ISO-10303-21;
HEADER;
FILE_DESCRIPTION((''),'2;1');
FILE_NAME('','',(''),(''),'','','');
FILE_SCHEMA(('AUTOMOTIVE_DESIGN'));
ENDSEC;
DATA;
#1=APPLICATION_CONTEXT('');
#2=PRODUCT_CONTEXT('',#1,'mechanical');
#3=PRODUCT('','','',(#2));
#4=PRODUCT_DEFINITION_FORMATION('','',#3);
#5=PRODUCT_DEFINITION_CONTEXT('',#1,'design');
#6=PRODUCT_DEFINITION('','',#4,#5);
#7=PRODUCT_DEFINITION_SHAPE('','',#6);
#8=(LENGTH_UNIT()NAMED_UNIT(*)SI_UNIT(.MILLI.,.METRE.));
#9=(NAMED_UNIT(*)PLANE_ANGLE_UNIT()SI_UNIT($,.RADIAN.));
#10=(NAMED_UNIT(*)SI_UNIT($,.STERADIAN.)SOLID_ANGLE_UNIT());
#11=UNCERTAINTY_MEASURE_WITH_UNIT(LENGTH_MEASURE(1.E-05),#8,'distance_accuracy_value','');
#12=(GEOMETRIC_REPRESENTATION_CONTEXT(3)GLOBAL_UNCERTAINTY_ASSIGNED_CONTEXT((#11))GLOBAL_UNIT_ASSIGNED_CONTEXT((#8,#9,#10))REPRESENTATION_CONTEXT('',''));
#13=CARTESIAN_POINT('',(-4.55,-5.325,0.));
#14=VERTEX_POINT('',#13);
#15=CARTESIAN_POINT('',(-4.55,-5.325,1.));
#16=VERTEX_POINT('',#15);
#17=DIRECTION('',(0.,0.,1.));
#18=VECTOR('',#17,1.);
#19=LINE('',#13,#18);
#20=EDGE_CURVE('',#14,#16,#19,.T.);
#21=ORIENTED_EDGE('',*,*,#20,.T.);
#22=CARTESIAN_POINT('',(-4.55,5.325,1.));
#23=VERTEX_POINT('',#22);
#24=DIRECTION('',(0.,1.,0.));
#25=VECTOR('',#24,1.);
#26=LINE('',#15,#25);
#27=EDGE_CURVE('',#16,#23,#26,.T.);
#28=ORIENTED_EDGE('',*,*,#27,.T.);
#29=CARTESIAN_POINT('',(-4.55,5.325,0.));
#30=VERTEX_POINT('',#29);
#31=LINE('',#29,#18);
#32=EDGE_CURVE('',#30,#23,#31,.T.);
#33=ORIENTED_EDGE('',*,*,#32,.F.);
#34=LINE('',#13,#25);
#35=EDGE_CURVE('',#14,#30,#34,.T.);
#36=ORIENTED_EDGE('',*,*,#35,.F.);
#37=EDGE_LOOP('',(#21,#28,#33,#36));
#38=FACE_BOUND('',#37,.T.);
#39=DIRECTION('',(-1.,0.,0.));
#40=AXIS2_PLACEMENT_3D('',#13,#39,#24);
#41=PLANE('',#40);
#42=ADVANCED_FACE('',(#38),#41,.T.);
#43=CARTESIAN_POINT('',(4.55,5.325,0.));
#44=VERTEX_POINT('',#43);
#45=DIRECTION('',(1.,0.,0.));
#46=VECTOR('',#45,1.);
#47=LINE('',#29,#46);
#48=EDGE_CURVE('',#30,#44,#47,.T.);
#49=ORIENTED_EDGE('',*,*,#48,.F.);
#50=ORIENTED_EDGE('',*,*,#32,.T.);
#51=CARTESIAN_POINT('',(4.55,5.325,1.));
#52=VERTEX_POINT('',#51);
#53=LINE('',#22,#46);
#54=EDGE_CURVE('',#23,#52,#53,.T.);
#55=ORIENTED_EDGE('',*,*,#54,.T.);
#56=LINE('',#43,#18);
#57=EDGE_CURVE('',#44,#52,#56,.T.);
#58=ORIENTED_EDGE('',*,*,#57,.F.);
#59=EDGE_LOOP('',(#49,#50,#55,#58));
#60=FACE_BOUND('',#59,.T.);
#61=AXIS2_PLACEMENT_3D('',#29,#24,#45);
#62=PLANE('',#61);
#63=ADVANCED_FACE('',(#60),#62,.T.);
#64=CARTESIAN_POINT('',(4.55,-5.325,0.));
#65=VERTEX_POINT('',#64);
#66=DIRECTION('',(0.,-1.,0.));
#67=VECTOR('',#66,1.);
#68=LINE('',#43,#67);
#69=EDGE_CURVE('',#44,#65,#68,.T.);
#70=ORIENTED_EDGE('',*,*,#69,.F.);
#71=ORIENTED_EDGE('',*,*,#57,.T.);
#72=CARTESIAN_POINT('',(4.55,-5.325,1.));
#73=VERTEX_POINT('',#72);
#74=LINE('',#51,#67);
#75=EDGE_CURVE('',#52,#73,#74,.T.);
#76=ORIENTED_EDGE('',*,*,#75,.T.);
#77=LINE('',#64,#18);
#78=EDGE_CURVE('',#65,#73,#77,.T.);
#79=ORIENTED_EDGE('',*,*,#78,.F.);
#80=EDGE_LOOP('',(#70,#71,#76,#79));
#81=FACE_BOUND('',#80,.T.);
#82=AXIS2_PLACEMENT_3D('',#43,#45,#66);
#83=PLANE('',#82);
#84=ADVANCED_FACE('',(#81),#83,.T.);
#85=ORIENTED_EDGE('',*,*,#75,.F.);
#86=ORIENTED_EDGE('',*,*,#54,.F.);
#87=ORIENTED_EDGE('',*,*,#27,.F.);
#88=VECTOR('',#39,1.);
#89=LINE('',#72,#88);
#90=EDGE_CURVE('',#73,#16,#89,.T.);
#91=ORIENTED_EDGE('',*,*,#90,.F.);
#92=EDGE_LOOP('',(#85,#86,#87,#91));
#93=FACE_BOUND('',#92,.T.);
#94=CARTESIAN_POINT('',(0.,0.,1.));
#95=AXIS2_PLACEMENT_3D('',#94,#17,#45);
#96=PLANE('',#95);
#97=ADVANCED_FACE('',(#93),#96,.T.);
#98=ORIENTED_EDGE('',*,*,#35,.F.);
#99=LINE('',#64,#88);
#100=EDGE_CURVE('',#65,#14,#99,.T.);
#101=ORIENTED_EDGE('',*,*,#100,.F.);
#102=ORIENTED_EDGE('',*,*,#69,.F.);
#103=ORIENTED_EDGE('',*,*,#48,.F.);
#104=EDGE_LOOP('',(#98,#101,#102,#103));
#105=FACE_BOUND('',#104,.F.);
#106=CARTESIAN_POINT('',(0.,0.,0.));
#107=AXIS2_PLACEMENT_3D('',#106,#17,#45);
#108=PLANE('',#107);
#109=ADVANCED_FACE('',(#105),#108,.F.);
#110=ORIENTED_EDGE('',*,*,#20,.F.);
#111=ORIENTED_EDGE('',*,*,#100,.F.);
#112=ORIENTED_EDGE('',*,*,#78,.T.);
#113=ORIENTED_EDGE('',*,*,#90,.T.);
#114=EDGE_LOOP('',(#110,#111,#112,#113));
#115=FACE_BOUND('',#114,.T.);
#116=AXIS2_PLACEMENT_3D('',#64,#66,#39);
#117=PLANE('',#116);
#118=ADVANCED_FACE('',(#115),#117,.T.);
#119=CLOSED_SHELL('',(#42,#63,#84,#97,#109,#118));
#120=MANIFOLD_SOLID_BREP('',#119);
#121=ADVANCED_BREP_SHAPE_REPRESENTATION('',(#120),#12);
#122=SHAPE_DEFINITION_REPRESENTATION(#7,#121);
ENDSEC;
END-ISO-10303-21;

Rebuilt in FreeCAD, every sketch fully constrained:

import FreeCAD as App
import Part
import Sketcher
Q = App.Units.Quantity

doc = App.newDocument("Part")
params = doc.addObject("Spreadsheet::Sheet", "Params")
for row, (alias, value) in enumerate([
    ("sketch1_width", "9.1 mm"),
    ("sketch1_height", "10.65 mm"),
    ("pad1_length", "1 mm"),
], start=1):
    params.set(f"A{row}", alias)
    params.set(f"B{row}", "=" + value)
    params.setAlias(f"B{row}", alias)

body = doc.addObject("PartDesign::Body", "Body")

# Sketch on XY plane
sketch1 = body.newObject("Sketcher::SketchObject", "Sketch")
sketch1.AttachmentSupport = (doc.getObject("XY_Plane"), [""])
sketch1.MapMode = "FlatFace"
sketch1.addGeometry(Part.LineSegment(App.Vector(-5, 5, 0), App.Vector(-5, -5, 0)), False)
sketch1.addGeometry(Part.LineSegment(App.Vector(-5, -5, 0), App.Vector(5, -5, 0)), False)
sketch1.addGeometry(Part.LineSegment(App.Vector(5, -5, 0), App.Vector(5, 5, 0)), False)
sketch1.addGeometry(Part.LineSegment(App.Vector(5, 5, 0), App.Vector(-5, 5, 0)), False)
sketch1.addConstraint(Sketcher.Constraint("Coincident", 0, 2, 1, 1))
sketch1.addConstraint(Sketcher.Constraint("Coincident", 1, 2, 2, 1))
sketch1.addConstraint(Sketcher.Constraint("Coincident", 2, 2, 3, 1))
sketch1.addConstraint(Sketcher.Constraint("Coincident", 3, 2, 0, 1))
sketch1.addConstraint(Sketcher.Constraint("Vertical", 0))
sketch1.addConstraint(Sketcher.Constraint("Horizontal", 1))
sketch1.addConstraint(Sketcher.Constraint("Vertical", 2))
sketch1.addConstraint(Sketcher.Constraint("Horizontal", 3))
sketch1.addConstraint(Sketcher.Constraint("Symmetric", 0, 2, 2, 2, -1, 1))
sketch1.addConstraint(Sketcher.Constraint("DistanceX", 1, 1, 1, 2, Q("9.1 mm")))
sketch1.addConstraint(Sketcher.Constraint("DistanceY", 0, 2, 0, 1, Q("10.65 mm")))
sketch1.setExpression("Constraints[9]", "Params.sketch1_width")
sketch1.setExpression("Constraints[10]", "Params.sketch1_height")
pad1 = body.newObject("PartDesign::Pad", "Pad")
pad1.Profile = sketch1
pad1.setExpression("Length", "Params.pad1_length")

doc.recompute()
